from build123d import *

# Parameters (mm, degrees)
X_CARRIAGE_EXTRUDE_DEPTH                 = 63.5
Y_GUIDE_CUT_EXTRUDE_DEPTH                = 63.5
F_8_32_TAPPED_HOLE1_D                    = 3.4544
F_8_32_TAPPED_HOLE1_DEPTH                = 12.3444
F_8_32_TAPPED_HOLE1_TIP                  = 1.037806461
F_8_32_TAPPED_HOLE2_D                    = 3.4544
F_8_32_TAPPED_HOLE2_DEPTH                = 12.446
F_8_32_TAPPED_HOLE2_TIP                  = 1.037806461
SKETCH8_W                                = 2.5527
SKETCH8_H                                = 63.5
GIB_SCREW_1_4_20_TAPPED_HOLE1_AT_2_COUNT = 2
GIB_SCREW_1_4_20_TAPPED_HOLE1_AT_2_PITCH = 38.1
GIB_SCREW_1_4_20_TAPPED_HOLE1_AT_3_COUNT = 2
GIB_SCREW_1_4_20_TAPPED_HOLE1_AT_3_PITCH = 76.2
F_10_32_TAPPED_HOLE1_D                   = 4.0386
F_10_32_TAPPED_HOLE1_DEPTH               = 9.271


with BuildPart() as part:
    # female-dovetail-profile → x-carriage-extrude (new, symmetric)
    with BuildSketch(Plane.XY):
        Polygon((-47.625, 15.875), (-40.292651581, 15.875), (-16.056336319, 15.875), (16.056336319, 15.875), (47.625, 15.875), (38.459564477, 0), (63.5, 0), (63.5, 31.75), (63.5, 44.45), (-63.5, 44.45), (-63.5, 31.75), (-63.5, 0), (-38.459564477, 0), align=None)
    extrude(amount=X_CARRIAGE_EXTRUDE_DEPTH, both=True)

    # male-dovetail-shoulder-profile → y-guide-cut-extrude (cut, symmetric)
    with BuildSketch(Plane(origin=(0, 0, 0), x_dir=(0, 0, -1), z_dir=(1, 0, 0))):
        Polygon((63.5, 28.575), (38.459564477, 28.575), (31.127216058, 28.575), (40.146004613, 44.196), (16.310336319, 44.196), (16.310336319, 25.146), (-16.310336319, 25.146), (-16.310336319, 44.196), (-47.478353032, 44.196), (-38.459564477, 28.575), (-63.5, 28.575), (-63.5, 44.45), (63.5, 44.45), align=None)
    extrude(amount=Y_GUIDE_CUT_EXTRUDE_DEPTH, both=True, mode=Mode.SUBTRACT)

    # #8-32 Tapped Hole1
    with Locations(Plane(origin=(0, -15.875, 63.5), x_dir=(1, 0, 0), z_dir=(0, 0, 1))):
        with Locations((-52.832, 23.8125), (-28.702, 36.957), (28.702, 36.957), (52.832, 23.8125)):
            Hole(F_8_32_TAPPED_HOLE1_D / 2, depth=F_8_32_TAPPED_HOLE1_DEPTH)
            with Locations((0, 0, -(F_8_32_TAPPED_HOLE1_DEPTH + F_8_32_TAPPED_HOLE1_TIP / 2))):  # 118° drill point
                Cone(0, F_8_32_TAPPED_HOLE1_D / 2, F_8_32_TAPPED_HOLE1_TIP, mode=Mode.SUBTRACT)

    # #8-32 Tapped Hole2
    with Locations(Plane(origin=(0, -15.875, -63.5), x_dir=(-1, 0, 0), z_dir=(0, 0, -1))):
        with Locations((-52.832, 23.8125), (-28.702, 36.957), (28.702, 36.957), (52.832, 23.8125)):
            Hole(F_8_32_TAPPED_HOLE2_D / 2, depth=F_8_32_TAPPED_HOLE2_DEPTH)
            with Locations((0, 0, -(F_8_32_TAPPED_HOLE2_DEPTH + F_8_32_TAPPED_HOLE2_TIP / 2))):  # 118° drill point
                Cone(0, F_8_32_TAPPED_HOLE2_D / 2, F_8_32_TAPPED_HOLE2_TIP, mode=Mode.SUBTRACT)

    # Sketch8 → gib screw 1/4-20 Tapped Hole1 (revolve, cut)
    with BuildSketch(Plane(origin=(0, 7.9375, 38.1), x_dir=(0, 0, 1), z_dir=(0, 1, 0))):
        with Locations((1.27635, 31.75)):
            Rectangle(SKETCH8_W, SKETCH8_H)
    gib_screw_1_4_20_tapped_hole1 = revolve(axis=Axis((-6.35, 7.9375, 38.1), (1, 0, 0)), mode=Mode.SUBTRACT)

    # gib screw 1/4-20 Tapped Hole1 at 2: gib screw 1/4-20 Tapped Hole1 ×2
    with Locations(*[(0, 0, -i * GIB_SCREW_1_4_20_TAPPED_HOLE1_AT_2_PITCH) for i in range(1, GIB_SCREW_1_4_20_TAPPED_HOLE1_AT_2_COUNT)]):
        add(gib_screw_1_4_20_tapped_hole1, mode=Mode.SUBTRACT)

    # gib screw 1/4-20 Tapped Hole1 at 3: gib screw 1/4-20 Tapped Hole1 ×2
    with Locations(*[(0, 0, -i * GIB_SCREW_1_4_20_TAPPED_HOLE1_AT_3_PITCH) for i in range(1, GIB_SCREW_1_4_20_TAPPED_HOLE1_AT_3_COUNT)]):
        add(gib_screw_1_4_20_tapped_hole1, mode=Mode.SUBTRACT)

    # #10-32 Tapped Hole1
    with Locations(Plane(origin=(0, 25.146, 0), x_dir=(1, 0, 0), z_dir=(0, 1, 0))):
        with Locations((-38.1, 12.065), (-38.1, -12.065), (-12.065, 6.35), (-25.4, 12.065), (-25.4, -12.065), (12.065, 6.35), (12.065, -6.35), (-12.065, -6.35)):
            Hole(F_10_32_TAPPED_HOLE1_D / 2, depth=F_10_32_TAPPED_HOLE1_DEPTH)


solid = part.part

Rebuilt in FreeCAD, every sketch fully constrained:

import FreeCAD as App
import Part
import Sketcher

V = App.Vector
Q = App.Units.Quantity

doc = App.newDocument("Part")
body = doc.addObject("PartDesign::Body", "Body")

# Sketch on XY plane
sketch1 = doc.addObject("Sketcher::SketchObject", "Sketch")
body.addObject(sketch1)
sketch1.AttachmentSupport = (doc.XY_Plane, [""])
sketch1.MapMode = "FlatFace"
sketch1.addGeometry([
    Part.LineSegment(V(-47.625, 15.875, 0), V(47.625, 15.875, 0)),  # 0
    Part.LineSegment(V(47.625, 15.875, 0), V(38.459564, 0, 0)),  # 1
    Part.LineSegment(V(38.459564, 0, 0), V(63.5, 0, 0)),  # 2
    Part.LineSegment(V(63.5, 0, 0), V(63.5, 44.45, 0)),  # 3
    Part.LineSegment(V(63.5, 44.45, 0), V(-63.5, 44.45, 0)),  # 4
    Part.LineSegment(V(-63.5, 44.45, 0), V(-63.5, 0, 0)),  # 5
    Part.LineSegment(V(-63.5, 0, 0), V(-38.459564, 0, 0)),  # 6
    Part.LineSegment(V(-38.459564, 0, 0), V(-47.625, 15.875, 0)),  # 7
], False)
sketch1.addConstraint([
    Sketcher.Constraint("Coincident", 0, 2, 1, 1),
    Sketcher.Constraint("Coincident", 1, 2, 2, 1),
    Sketcher.Constraint("Coincident", 2, 2, 3, 1),
    Sketcher.Constraint("Coincident", 3, 2, 4, 1),
    Sketcher.Constraint("Coincident", 4, 2, 5, 1),
    Sketcher.Constraint("Coincident", 5, 2, 6, 1),
    Sketcher.Constraint("Coincident", 6, 2, 7, 1),
    Sketcher.Constraint("Coincident", 7, 2, 0, 1),
    Sketcher.Constraint("Horizontal", 0),
    Sketcher.Constraint("Horizontal", 2),
    Sketcher.Constraint("Vertical", 3),
    Sketcher.Constraint("Horizontal", 4),
    Sketcher.Constraint("Vertical", 5),
    Sketcher.Constraint("Horizontal", 6),
    Sketcher.Constraint("Symmetric", 2, 2, 5, 2, -1, 1),
    Sketcher.Constraint("Symmetric", 1, 2, 6, 2, -2),
    Sketcher.Constraint("Equal", 1, 7),
    Sketcher.Constraint("DistanceX", 4, 2, 4, 1, Q("5 in")),
    Sketcher.Constraint("Angle", 1, Q("-120 deg")),
    Sketcher.Constraint("DistanceX", 0, 1, 0, 2, Q("3.75 in")),
    Sketcher.Constraint("DistanceY", 3, 1, 3, 2, Q("1.75 in")),
    Sketcher.Constraint("DistanceY", -1, 1, 0, 2, Q("0.625 in")),
])
pad1 = doc.addObject("PartDesign::Pad", "Pad")
body.addObject(pad1)
pad1.Profile = sketch1
pad1.Length = Q("5 in")
pad1.Midplane = True

# Sketch on YZ plane
sketch2 = doc.addObject("Sketcher::SketchObject", "Sketch001")
body.addObject(sketch2)
sketch2.AttachmentSupport = (doc.YZ_Plane, [""])
sketch2.MapMode = "FlatFace"
sketch2.addGeometry([
    Part.LineSegment(V(28.575, -31.127216, 0), V(28.575, -63.5, 0)),  # 0
    Part.LineSegment(V(28.575, -63.5, 0), V(44.45, -63.5, 0)),  # 1
    Part.LineSegment(V(44.45, -63.5, 0), V(44.45, 63.5, 0)),  # 2
    Part.LineSegment(V(44.45, 63.5, 0), V(28.575, 63.5, 0)),  # 3
    Part.LineSegment(V(28.575, 63.5, 0), V(28.575, 38.459564, 0)),  # 4
    Part.LineSegment(V(28.575, 38.459564, 0), V(44.196, 47.478353, 0)),  # 5
    Part.LineSegment(V(44.196, 47.478353, 0), V(44.196, 16.310336, 0)),  # 6
    Part.LineSegment(V(44.196, 16.310336, 0), V(25.146, 16.310336, 0)),  # 7
    Part.LineSegment(V(25.146, 16.310336, 0), V(25.146, -16.310336, 0)),  # 8
    Part.LineSegment(V(25.146, -16.310336, 0), V(44.196, -16.310336, 0)),  # 9
    Part.LineSegment(V(44.196, -16.310336, 0), V(44.196, -40.146005, 0)),  # 10
    Part.LineSegment(V(44.196, -40.146005, 0), V(28.575, -31.127216, 0)),  # 11
], False)
sketch2.addConstraint([
    Sketcher.Constraint("Coincident", 0, 2, 1, 1),
    Sketcher.Constraint("Coincident", 1, 2, 2, 1),
    Sketcher.Constraint("Coincident", 2, 2, 3, 1),
    Sketcher.Constraint("Coincident", 3, 2, 4, 1),
    Sketcher.Constraint("Coincident", 4, 2, 5, 1),
    Sketcher.Constraint("Coincident", 5, 2, 6, 1),
    Sketcher.Constraint("Coincident", 6, 2, 7, 1),
    Sketcher.Constraint("Coincident", 7, 2, 8, 1),
    Sketcher.Constraint("Coincident", 8, 2, 9, 1),
    Sketcher.Constraint("Coincident", 9, 2, 10, 1),
    Sketcher.Constraint("Coincident", 10, 2, 11, 1),
    Sketcher.Constraint("Coincident", 11, 2, 0, 1),
    Sketcher.Constraint("Vertical", 0),
    Sketcher.Constraint("Horizontal", 1),
    Sketcher.Constraint("Vertical", 2),
    Sketcher.Constraint("Horizontal", 3),
    Sketcher.Constraint("Vertical", 4),
    Sketcher.Constraint("Vertical", 6),
    Sketcher.Constraint("Horizontal", 7),
    Sketcher.Constraint("Vertical", 8),
    Sketcher.Constraint("Horizontal", 9),
    Sketcher.Constraint("Vertical", 10),
    Sketcher.Constraint("Symmetric", 0, 2, 3, 2, -1),
    Sketcher.Constraint("Symmetric", 6, 2, 9, 2, -1),
    Sketcher.Constraint("Equal", 5, 11),
    Sketcher.Constraint("DistanceY", 2, 1, 2, 2, Q("5 in")),
    Sketcher.Constraint("Angle", 5, Q("30 deg")),
    Sketcher.Constraint("DistanceX", 7, 2, 7, 1, Q("0.75 in")),
    Sketcher.Constraint("DistanceX", 1, 1, 1, 2, Q("0.625 in")),
    Sketcher.Constraint("DistanceX", -1, 1, 1, 2, Q("1.75 in")),
    Sketcher.Constraint("DistanceX", -1, 1, 5, 2, Q("1.74 in")),
    Sketcher.Constraint("DistanceY", 10, 2, 10, 1, Q("23.835668 mm")),
    Sketcher.Constraint("DistanceY", 8, 2, 4, 2, Q("54.769901 mm")),
    Sketcher.Constraint("DistanceY", 0, 2, 0, 1, Q("32.372784 mm")),
])
pocket1 = doc.addObject("PartDesign::Pocket", "Pocket")
body.addObject(pocket1)
pocket1.Profile = sketch2
pocket1.Length = Q("5 in")
pocket1.Midplane = True

# Sketch on XY plane
sketch3 = doc.addObject("Sketcher::SketchObject", "Sketch002")
body.addObject(sketch3)
sketch3.AttachmentSupport = (doc.XY_Plane, [""])
sketch3.MapMode = "FlatFace"
sketch3.AttachmentOffset = App.Placement(V(0, 0, 2.5 * 25.4), App.Rotation())
sketch3.addGeometry([
    Part.Circle(V(-52.832, 7.9375, 0), V(0, 0, 1), 1.7272),
    Part.Circle(V(-28.702, 21.082, 0), V(0, 0, 1), 1.7272),
    Part.Circle(V(28.702, 21.082, 0), V(0, 0, 1), 1.7272),
    Part.Circle(V(52.832, 7.9375, 0), V(0, 0, 1), 1.7272),
], False)
sketch3.addConstraint([
    Sketcher.Constraint("Equal", 0, 1),
    Sketcher.Constraint("Equal", 1, 2),
    Sketcher.Constraint("Equal", 2, 3),
    Sketcher.Constraint("Symmetric", 1, 3, 2, 3, -2),
    Sketcher.Constraint("Symmetric", 0, 3, 3, 3, -2),
    Sketcher.Constraint("Diameter", 0, Q("0.136 in")),
    Sketcher.Constraint("DistanceX", 0, 3, -1, 1, Q("2.08 in")),
    Sketcher.Constraint("DistanceX", 1, 3, -1, 1, Q("1.13 in")),
    Sketcher.Constraint("DistanceY", -1, 1, 1, 3, Q("0.83 in")),
    Sketcher.Constraint("DistanceY", -1, 1, 0, 3, Q("0.3125 in")),
])
doc.recompute()
hole = doc.addObject("PartDesign::Hole", "Hole")
body.addObject(hole)
hole.Profile = sketch3
hole.ThreadType = "None"
hole.Diameter = Q("0.136 in")
hole.DepthType = "Dimension"
hole.Depth = Q("0.486 in")
hole.DrillPoint = "Angled"
hole.DrillPointAngle = 118

# Sketch on XY plane
sketch4 = doc.addObject("Sketcher::SketchObject", "Sketch003")
body.addObject(sketch4)
sketch4.AttachmentSupport = (doc.XY_Plane, [""])
sketch4.MapMode = "FlatFace"
sketch4.AttachmentOffset = App.Placement(V(0, 0, -2.5 * 25.4), App.Rotation())
sketch4.addGeometry([
    Part.Circle(V(52.832, 7.9375, 0), V(0, 0, 1), 1.7272),
    Part.Circle(V(28.702, 21.082, 0), V(0, 0, 1), 1.7272),
    Part.Circle(V(-28.702, 21.082, 0), V(0, 0, 1), 1.7272),
    Part.Circle(V(-52.832, 7.9375, 0), V(0, 0, 1), 1.7272),
], False)
sketch4.addConstraint([
    Sketcher.Constraint("Equal", 0, 1),
    Sketcher.Constraint("Equal", 1, 2),
    Sketcher.Constraint("Equal", 2, 3),
    Sketcher.Constraint("Symmetric", 1, 3, 2, 3, -2),
    Sketcher.Constraint("Symmetric", 0, 3, 3, 3, -2),
    Sketcher.Constraint("Diameter", 0, Q("0.136 in")),
    Sketcher.Constraint("DistanceX", -1, 1, 0, 3, Q("2.08 in")),
    Sketcher.Constraint("DistanceX", -1, 1, 1, 3, Q("1.13 in")),
    Sketcher.Constraint("DistanceY", -1, 1, 1, 3, Q("0.83 in")),
    Sketcher.Constraint("DistanceY", -1, 1, 0, 3, Q("0.3125 in")),
])
doc.recompute()
hole2 = doc.addObject("PartDesign::Hole", "Hole001")
body.addObject(hole2)
hole2.Profile = sketch4
hole2.ThreadType = "None"
hole2.Diameter = Q("0.136 in")
hole2.DepthType = "Dimension"
hole2.Depth = Q("0.49 in")
hole2.DrillPoint = "Angled"
hole2.DrillPointAngle = 118
hole2.Reversed = True

# Sketch on XZ plane
sketch5 = doc.addObject("Sketcher::SketchObject", "Sketch004")
body.addObject(sketch5)
sketch5.AttachmentSupport = (doc.XZ_Plane, [""])
sketch5.MapMode = "FlatFace"
sketch5.AttachmentOffset = App.Placement(V(0, 0, -0.3125 * 25.4), App.Rotation())
sketch5.addGeometry([
    Part.LineSegment(V(63.5, 38.1, 0), V(0, 38.1, 0)),
    Part.LineSegment(V(0, 38.1, 0), V(0, 40.6527, 0)),
    Part.LineSegment(V(0, 40.6527, 0), V(63.5, 40.6527, 0)),
    Part.LineSegment(V(63.5, 40.6527, 0), V(63.5, 38.1, 0)),
], False)
sketch5.addGeometry(Part.LineSegment(V(0, 38.1, 0), V(63.5, 38.1, 0)), True)  # axis
sketch5.addConstraint([
    Sketcher.Constraint("Coincident", 0, 2, 1, 1),
    Sketcher.Constraint("Coincident", 1, 2, 2, 1),
    Sketcher.Constraint("Coincident", 2, 2, 3, 1),
    Sketcher.Constraint("Coincident", 3, 2, 0, 1),
    Sketcher.Constraint("Horizontal", 0),
    Sketcher.Constraint("Vertical", 1),
    Sketcher.Constraint("Horizontal", 2),
    Sketcher.Constraint("Vertical", 3),
    Sketcher.Constraint("Horizontal", 4),
    Sketcher.Constraint("Coincident", 4, 1, 0, 2),
    Sketcher.Constraint("PointOnObject", 0, 2, -2),
    Sketcher.Constraint("Vertical", 2, 2, 4, 2),
    Sketcher.Constraint("DistanceX", 0, 2, 0, 1, Q("2.5 in")),
    Sketcher.Constraint("DistanceY", -1, 1, 0, 2, Q("1.5 in")),
    Sketcher.Constraint("DistanceY", 1, 1, 1, 2, Q("0.1005 in")),
])
groove = doc.addObject("PartDesign::Groove", "Groove")
body.addObject(groove)
groove.Profile = sketch5
groove.ReferenceAxis = (sketch5, ["Axis0"])
groove.Angle = 360
doc.recompute()

linearpattern = doc.addObject("PartDesign::LinearPattern", "LinearPattern")
body.addObject(linearpattern)
linearpattern.Originals = [groove]
linearpattern.Direction = (doc.Z_Axis, [""])
linearpattern.Mode = "offset"
linearpattern.Offset = Q("1.5 in")
linearpattern.Occurrences = 2
linearpattern.Reversed = True
body.Tip = linearpattern
doc.recompute()

linearpattern2 = doc.addObject("PartDesign::LinearPattern", "LinearPattern001")
body.addObject(linearpattern2)
linearpattern2.Originals = [groove]
linearpattern2.Direction = (doc.Z_Axis, [""])
linearpattern2.Mode = "offset"
linearpattern2.Offset = Q("3 in")
linearpattern2.Occurrences = 2
linearpattern2.Reversed = True
body.Tip = linearpattern2

# Sketch on XZ plane
sketch6 = doc.addObject("Sketcher::SketchObject", "Sketch005")
body.addObject(sketch6)
sketch6.AttachmentSupport = (doc.XZ_Plane, [""])
sketch6.MapMode = "FlatFace"
sketch6.AttachmentOffset = App.Placement(V(0, 0, -0.99 * 25.4), App.Rotation())
sketch6.addGeometry([
    Part.Circle(V(-38.1, -12.065, 0), V(0, 0, 1), 2.0193),  # 0
    Part.Circle(V(-38.1, 12.065, 0), V(0, 0, 1), 2.0193),  # 1
    Part.Circle(V(-12.065, -6.35, 0), V(0, 0, 1), 2.0193),  # 2
    Part.Circle(V(-25.4, -12.065, 0), V(0, 0, 1), 2.0193),  # 3
    Part.Circle(V(-25.4, 12.065, 0), V(0, 0, 1), 2.0193),  # 4
    Part.Circle(V(12.065, -6.35, 0), V(0, 0, 1), 2.0193),  # 5
    Part.Circle(V(12.065, 6.35, 0), V(0, 0, 1), 2.0193),  # 6
    Part.Circle(V(-12.065, 6.35, 0), V(0, 0, 1), 2.0193),  # 7
], False)
sketch6.addConstraint([
    Sketcher.Constraint("Equal", 0, 1),
    Sketcher.Constraint("Equal", 1, 2),
    Sketcher.Constraint("Equal", 2, 3),
    Sketcher.Constraint("Equal", 3, 4),
    Sketcher.Constraint("Equal", 4, 5),
    Sketcher.Constraint("Equal", 5, 6),
    Sketcher.Constraint("Equal", 6, 7),
    Sketcher.Constraint("Symmetric", 2, 3, 6, 3, -1, 1),
    Sketcher.Constraint("Symmetric", 5, 3, 7, 3, -1, 1),
    Sketcher.Constraint("Symmetric", 2, 3, 5, 3, -2),
    Sketcher.Constraint("Symmetric", 0, 3, 1, 3, -1),
    Sketcher.Constraint("Symmetric", 3, 3, 4, 3, -1),
    Sketcher.Constraint("Horizontal", 0, 3, 3, 3),
    Sketcher.Constraint("Diameter", 0, Q("0.159 in")),
    Sketcher.Constraint("DistanceX", 3, 3, -1, 1, Q("1 in")),
    Sketcher.Constraint("DistanceX", 0, 3, -1, 1, Q("1.5 in")),
    Sketcher.Constraint("DistanceY", 5, 3, 6, 3, Q("0.5 in")),
    Sketcher.Constraint("DistanceY", 0, 3, 1, 3, Q("0.95 in")),
    Sketcher.Constraint("DistanceX", 2, 3, 5, 3, Q("0.95 in")),
])
doc.recompute()
hole3 = doc.addObject("PartDesign::Hole", "Hole002")
body.addObject(hole3)
hole3.Profile = sketch6
hole3.ThreadType = "None"
hole3.Diameter = Q("0.159 in")
hole3.DepthType = "Dimension"
hole3.Depth = Q("0.365 in")
hole3.DrillPoint = "Flat"
hole3.Reversed = True

doc.recompute()
